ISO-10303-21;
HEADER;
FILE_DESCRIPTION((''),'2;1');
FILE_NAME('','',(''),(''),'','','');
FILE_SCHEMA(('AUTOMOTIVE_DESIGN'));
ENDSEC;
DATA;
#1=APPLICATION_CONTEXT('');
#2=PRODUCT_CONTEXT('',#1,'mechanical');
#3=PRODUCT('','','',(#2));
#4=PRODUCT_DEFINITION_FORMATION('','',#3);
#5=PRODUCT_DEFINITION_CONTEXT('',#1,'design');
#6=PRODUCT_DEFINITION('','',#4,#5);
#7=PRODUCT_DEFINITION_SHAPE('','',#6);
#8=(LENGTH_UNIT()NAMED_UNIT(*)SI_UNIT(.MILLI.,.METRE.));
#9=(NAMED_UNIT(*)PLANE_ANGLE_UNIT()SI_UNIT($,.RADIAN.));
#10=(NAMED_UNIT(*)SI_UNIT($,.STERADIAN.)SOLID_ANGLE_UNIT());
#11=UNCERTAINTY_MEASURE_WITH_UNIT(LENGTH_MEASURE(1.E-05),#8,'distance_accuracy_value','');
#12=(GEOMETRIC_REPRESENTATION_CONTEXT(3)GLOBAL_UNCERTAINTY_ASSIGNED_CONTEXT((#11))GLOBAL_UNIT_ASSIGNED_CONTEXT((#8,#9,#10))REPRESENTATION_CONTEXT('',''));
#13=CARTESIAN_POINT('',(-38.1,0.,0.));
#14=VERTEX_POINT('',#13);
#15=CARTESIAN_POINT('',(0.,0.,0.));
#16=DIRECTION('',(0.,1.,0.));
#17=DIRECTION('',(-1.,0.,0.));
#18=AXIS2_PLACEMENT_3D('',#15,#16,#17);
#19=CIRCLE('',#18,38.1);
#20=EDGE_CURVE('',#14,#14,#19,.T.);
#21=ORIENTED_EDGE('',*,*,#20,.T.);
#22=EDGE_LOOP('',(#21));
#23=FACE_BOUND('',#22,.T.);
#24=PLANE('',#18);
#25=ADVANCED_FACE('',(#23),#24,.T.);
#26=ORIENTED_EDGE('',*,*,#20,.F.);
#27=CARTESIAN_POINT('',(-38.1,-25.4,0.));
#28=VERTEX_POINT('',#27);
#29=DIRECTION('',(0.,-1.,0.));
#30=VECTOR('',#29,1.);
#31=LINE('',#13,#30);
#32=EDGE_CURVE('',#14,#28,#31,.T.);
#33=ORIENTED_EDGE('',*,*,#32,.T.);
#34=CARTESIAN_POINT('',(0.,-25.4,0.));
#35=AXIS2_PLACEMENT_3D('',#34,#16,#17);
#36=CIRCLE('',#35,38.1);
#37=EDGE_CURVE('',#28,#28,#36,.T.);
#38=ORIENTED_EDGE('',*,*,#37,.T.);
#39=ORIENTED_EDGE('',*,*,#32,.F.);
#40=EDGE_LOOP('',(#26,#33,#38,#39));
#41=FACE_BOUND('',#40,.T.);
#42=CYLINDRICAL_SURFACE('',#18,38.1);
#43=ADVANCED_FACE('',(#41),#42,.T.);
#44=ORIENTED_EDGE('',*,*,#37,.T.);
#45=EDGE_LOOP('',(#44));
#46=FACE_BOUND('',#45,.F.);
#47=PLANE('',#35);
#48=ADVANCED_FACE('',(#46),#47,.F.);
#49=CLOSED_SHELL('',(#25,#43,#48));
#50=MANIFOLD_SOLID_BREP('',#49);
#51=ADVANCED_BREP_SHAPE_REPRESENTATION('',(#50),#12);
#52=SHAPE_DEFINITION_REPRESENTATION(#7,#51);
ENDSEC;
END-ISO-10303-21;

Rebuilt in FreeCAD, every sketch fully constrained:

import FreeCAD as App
import Part
import Sketcher
from FreeCAD import Vector
Q = App.Units.Quantity

doc = App.newDocument("Part")
body = doc.addObject("PartDesign::Body", "Body")

# Sketch on XZ plane
sketch1 = doc.addObject("Sketcher::SketchObject", "Sketch")
body.addObject(sketch1)
sketch1.AttachmentSupport = (doc.XZ_Plane, [""])
sketch1.MapMode = "FlatFace"
sketch1.addGeometry(Part.Circle(Vector(0, 0, 0), Vector(0, 0, 1), 38), False)
sketch1.addConstraint([
    Sketcher.Constraint("Coincident", 0, 3, -1, 1),
    Sketcher.Constraint("Diameter", 0, Q("3 in")),
])
pad1 = doc.addObject("PartDesign::Pad", "Pad")
body.addObject(pad1)
pad1.Profile = sketch1
pad1.Length = Q("1 in")

doc.recompute()
